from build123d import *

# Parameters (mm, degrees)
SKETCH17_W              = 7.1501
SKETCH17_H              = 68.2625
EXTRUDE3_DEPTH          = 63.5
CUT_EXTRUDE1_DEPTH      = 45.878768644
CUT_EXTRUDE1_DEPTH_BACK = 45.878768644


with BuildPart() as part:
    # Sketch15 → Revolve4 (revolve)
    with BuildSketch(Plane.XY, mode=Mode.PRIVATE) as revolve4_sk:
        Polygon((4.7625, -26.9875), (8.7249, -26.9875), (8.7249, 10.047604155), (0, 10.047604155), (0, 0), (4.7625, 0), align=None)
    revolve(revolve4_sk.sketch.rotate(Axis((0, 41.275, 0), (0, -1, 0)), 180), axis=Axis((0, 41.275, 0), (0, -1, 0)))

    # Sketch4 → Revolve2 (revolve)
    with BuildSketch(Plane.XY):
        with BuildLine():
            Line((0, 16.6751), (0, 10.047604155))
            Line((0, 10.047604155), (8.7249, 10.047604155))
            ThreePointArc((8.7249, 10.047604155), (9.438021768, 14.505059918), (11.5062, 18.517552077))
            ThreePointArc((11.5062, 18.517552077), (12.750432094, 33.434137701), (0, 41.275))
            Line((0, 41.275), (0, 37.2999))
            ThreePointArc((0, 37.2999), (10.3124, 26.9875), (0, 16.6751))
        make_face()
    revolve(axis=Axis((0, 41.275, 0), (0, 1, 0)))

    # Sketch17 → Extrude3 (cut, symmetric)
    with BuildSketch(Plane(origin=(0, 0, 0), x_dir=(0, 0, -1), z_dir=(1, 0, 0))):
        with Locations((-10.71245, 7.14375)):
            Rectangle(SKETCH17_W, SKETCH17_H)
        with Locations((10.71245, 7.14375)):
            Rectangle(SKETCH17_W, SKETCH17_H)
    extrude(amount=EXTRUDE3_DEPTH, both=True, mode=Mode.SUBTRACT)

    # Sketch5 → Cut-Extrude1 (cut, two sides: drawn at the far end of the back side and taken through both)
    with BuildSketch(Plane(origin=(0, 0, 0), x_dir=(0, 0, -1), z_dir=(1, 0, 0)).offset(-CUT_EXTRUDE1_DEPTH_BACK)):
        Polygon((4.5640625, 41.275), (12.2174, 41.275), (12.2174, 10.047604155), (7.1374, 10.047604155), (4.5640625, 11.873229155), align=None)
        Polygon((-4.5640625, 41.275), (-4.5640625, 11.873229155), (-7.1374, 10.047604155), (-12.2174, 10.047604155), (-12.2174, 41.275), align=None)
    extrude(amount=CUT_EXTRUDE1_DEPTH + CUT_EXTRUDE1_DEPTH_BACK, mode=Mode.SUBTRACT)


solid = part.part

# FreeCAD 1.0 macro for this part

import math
import FreeCAD as App
import Part
import Sketcher

V = App.Vector
Q = App.Units.Quantity

doc = App.newDocument("Part")
body = doc.addObject("PartDesign::Body", "Body")

# Sketch on XY plane
sketch1 = body.newObject("Sketcher::SketchObject", "Sketch")
sketch1.AttachmentSupport = (doc.getObject("XY_Plane"), [""])
sketch1.MapMode = "FlatFace"
sketch1.addGeometry([
    Part.LineSegment(V(4.8, -27, 0), V(8.7, -27, 0)),  # 0
    Part.LineSegment(V(8.7, -27, 0), V(8.7, 10, 0)),  # 1
    Part.LineSegment(V(8.7, 10, 0), V(0, 10, 0)),  # 2
    Part.LineSegment(V(0, 10, 0), V(0, 0, 0)),  # 3
    Part.LineSegment(V(0, 0, 0), V(4.8, 0, 0)),  # 4
    Part.LineSegment(V(4.8, 0, 0), V(4.8, -27, 0)),  # 5
], False)
sketch1.addConstraint([
    Sketcher.Constraint("Coincident", 0, 2, 1, 1),
    Sketcher.Constraint("Coincident", 1, 2, 2, 1),
    Sketcher.Constraint("Coincident", 2, 2, 3, 1),
    Sketcher.Constraint("Coincident", 3, 2, 4, 1),
    Sketcher.Constraint("Coincident", 4, 2, 5, 1),
    Sketcher.Constraint("Coincident", 5, 2, 0, 1),
    Sketcher.Constraint("Horizontal", 0),
    Sketcher.Constraint("Vertical", 1),
    Sketcher.Constraint("Horizontal", 2),
    Sketcher.Constraint("Vertical", 3),
    Sketcher.Constraint("Horizontal", 4),
    Sketcher.Constraint("Vertical", 5),
    Sketcher.Constraint("Coincident", 3, 2, -1, 1),
    Sketcher.Constraint("DistanceX", 0, 1, 0, 2, Q("0.156 in")),
    Sketcher.Constraint("DistanceX", 4, 1, 4, 2, Q("0.1875 in")),
    Sketcher.Constraint("DistanceY", 5, 2, 5, 1, Q("1.0625 in")),
    Sketcher.Constraint("DistanceY", 1, 1, 1, 2, 37.035104),
])
revolution = body.newObject("PartDesign::Revolution", "Revolution")
revolution.Profile = sketch1
revolution.ReferenceAxis = (sketch1, ["V_Axis"])
revolution.Angle = 360

# Sketch on XY plane
sketch2 = body.newObject("Sketcher::SketchObject", "Sketch001")
sketch2.AttachmentSupport = (doc.getObject("XY_Plane"), [""])
sketch2.MapMode = "FlatFace"
sketch2.addGeometry([
    Part.LineSegment(V(0, 16.7, 0), V(0, 10, 0)),  # 0
    Part.LineSegment(V(0, 10, 0), V(8.7, 10, 0)),  # 1
    Part.ArcOfCircle(Part.Circle(V(23, 10, 0), V(0, 0, 1), 14.3), math.radians(144), math.radians(180)),  # 2
    Part.ArcOfCircle(Part.Circle(V(0, 27, 0), V(0, 0, 1), 14.3), math.radians(-36), math.radians(90)),  # 3
    Part.LineSegment(V(0, 41.3, 0), V(0, 37.3, 0)),  # 4
    Part.ArcOfCircle(Part.Circle(V(0, 27, 0), V(0, 0, 1), 10.3), math.radians(-90), math.radians(90)),  # 5
], False)
sketch2.addConstraint([
    Sketcher.Constraint("Coincident", 0, 2, 1, 1),
    Sketcher.Constraint("Coincident", 1, 2, 2, 2),
    Sketcher.Constraint("Tangent", 2, 1, 3, 1),
    Sketcher.Constraint("Coincident", 3, 2, 4, 1),
    Sketcher.Constraint("Coincident", 4, 2, 5, 2),
    Sketcher.Constraint("Coincident", 5, 1, 0, 1),
    Sketcher.Constraint("Vertical", 0),
    Sketcher.Constraint("Horizontal", 1),
    Sketcher.Constraint("Vertical", 4),
    Sketcher.Constraint("Coincident", 5, 3, 3, 3),
    Sketcher.Constraint("Equal", 2, 3),
    Sketcher.Constraint("PointOnObject", 3, 3, -2),
    Sketcher.Constraint("PointOnObject", 0, 2, -2),
    Sketcher.Constraint("PointOnObject", 3, 2, -2),
    Sketcher.Constraint("Horizontal", 2, 3, 0, 2),
    Sketcher.Constraint("Radius", 2, Q("0.5625 in")),
    Sketcher.Constraint("Radius", 5, Q("0.406 in")),
    Sketcher.Constraint("DistanceX", 1, 1, 1, 2, Q("0.3435 in")),
    Sketcher.Constraint("DistanceY", -1, 1, 3, 3, Q("1.0625 in")),
])
revolution2 = body.newObject("PartDesign::Revolution", "Revolution001")
revolution2.Profile = sketch2
revolution2.ReferenceAxis = (sketch2, ["V_Axis"])
revolution2.Angle = 360

# Sketch on YZ plane
sketch3 = body.newObject("Sketcher::SketchObject", "Sketch002")
sketch3.AttachmentSupport = (doc.getObject("YZ_Plane"), [""])
sketch3.MapMode = "FlatFace"
sketch3.addGeometry([
    Part.LineSegment(V(41, 14, 0), V(-27, 14, 0)),  # 0
    Part.LineSegment(V(-27, 14, 0), V(-27, 7, 0)),  # 1
    Part.LineSegment(V(-27, 7, 0), V(41, 7, 0)),  # 2
    Part.LineSegment(V(41, 7, 0), V(41, 14, 0)),  # 3
    Part.LineSegment(V(41, -7, 0), V(-27, -7, 0)),  # 4
    Part.LineSegment(V(-27, -7, 0), V(-27, -14, 0)),  # 5
    Part.LineSegment(V(-27, -14, 0), V(41, -14, 0)),  # 6
    Part.LineSegment(V(41, -14, 0), V(41, -7, 0)),  # 7
], False)
sketch3.addConstraint([
    Sketcher.Constraint("Coincident", 0, 2, 1, 1),
    Sketcher.Constraint("Coincident", 1, 2, 2, 1),
    Sketcher.Constraint("Coincident", 2, 2, 3, 1),
    Sketcher.Constraint("Coincident", 3, 2, 0, 1),
    Sketcher.Constraint("Coincident", 4, 2, 5, 1),
    Sketcher.Constraint("Coincident", 5, 2, 6, 1),
    Sketcher.Constraint("Coincident", 6, 2, 7, 1),
    Sketcher.Constraint("Coincident", 7, 2, 4, 1),
    Sketcher.Constraint("Horizontal", 0),
    Sketcher.Constraint("Vertical", 1),
    Sketcher.Constraint("Horizontal", 2),
    Sketcher.Constraint("Vertical", 3),
    Sketcher.Constraint("Horizontal", 4),
    Sketcher.Constraint("Vertical", 5),
    Sketcher.Constraint("Horizontal", 6),
    Sketcher.Constraint("Vertical", 7),
    Sketcher.Constraint("Symmetric", 1, 2, 4, 2, -1),
    Sketcher.Constraint("Symmetric", 3, 2, 6, 2, -1),
    Sketcher.Constraint("DistanceX", 0, 2, 0, 1, Q("2.6875 in")),
    Sketcher.Constraint("DistanceY", 1, 2, 1, 1, Q("0.2815 in")),
    Sketcher.Constraint("DistanceX", 0, 2, -1, 1, Q("1.0625 in")),
    Sketcher.Constraint("DistanceY", -1, 1, 0, 2, Q("0.5625 in")),
])
pocket1 = body.newObject("PartDesign::Pocket", "Pocket")
pocket1.Profile = sketch3
pocket1.Length = Q("5 in")
pocket1.Midplane = True

# Sketch on YZ plane
sketch4 = body.newObject("Sketcher::SketchObject", "Sketch003")
sketch4.AttachmentSupport = (doc.getObject("YZ_Plane"), [""])
sketch4.MapMode = "FlatFace"
sketch4.addGeometry([
    Part.LineSegment(V(41.3, -12.2, 0), V(41.3, -4.6, 0)),  # 0
    Part.LineSegment(V(41.3, -4.6, 0), V(11.9, -4.6, 0)),  # 1
    Part.LineSegment(V(11.9, -4.6, 0), V(10, -7.1, 0)),  # 2
    Part.LineSegment(V(10, -7.1, 0), V(10, -12.2, 0)),  # 3
    Part.LineSegment(V(10, -12.2, 0), V(41.3, -12.2, 0)),  # 4
    Part.LineSegment(V(11.9, 4.6, 0), V(41.3, 4.6, 0)),  # 5
    Part.LineSegment(V(41.3, 4.6, 0), V(41.3, 12.2, 0)),  # 6
    Part.LineSegment(V(41.3, 12.2, 0), V(10, 12.2, 0)),  # 7
    Part.LineSegment(V(10, 12.2, 0), V(10, 7.1, 0)),  # 8
    Part.LineSegment(V(10, 7.1, 0), V(11.9, 4.6, 0)),  # 9
], False)
sketch4.addConstraint([
    Sketcher.Constraint("Coincident", 0, 2, 1, 1),
    Sketcher.Constraint("Coincident", 1, 2, 2, 1),
    Sketcher.Constraint("Coincident", 2, 2, 3, 1),
    Sketcher.Constraint("Coincident", 3, 2, 4, 1),
    Sketcher.Constraint("Coincident", 4, 2, 0, 1),
    Sketcher.Constraint("Coincident", 5, 2, 6, 1),
    Sketcher.Constraint("Coincident", 6, 2, 7, 1),
    Sketcher.Constraint("Coincident", 7, 2, 8, 1),
    Sketcher.Constraint("Coincident", 8, 2, 9, 1),
    Sketcher.Constraint("Coincident", 9, 2, 5, 1),
    Sketcher.Constraint("Vertical", 0),
    Sketcher.Constraint("Horizontal", 1),
    Sketcher.Constraint("Vertical", 3),
    Sketcher.Constraint("Horizontal", 4),
    Sketcher.Constraint("Horizontal", 5),
    Sketcher.Constraint("Vertical", 6),
    Sketcher.Constraint("Horizontal", 7),
    Sketcher.Constraint("Vertical", 8),
    Sketcher.Constraint("Symmetric", 0, 2, 5, 2, -1),
    Sketcher.Constraint("Symmetric", 3, 2, 7, 2, -1),
    Sketcher.Constraint("Vertical", 1, 2, 9, 2),
    Sketcher.Constraint("Equal", 3, 8),
    Sketcher.Constraint("DistanceY", 3, 2, 3, 1, Q("0.2 in")),
    Sketcher.Constraint("DistanceX", -1, 1, 0, 2, Q("1.625 in")),
    Sketcher.Constraint("DistanceY", 2, 2, -1, 1, Q("0.281 in")),
    Sketcher.Constraint("DistanceY", 0, 2, 5, 2, Q("0.359375 in")),
    Sketcher.Constraint("DistanceX", 1, 2, 1, 1, 29.401771),
    Sketcher.Constraint("Distance", 2, 3.15515),
])
pocket2 = body.newObject("PartDesign::Pocket", "Pocket001")
pocket2.Profile = sketch4
pocket2.Type = "ThroughAll"
pocket2.Midplane = True

doc.recompute()
